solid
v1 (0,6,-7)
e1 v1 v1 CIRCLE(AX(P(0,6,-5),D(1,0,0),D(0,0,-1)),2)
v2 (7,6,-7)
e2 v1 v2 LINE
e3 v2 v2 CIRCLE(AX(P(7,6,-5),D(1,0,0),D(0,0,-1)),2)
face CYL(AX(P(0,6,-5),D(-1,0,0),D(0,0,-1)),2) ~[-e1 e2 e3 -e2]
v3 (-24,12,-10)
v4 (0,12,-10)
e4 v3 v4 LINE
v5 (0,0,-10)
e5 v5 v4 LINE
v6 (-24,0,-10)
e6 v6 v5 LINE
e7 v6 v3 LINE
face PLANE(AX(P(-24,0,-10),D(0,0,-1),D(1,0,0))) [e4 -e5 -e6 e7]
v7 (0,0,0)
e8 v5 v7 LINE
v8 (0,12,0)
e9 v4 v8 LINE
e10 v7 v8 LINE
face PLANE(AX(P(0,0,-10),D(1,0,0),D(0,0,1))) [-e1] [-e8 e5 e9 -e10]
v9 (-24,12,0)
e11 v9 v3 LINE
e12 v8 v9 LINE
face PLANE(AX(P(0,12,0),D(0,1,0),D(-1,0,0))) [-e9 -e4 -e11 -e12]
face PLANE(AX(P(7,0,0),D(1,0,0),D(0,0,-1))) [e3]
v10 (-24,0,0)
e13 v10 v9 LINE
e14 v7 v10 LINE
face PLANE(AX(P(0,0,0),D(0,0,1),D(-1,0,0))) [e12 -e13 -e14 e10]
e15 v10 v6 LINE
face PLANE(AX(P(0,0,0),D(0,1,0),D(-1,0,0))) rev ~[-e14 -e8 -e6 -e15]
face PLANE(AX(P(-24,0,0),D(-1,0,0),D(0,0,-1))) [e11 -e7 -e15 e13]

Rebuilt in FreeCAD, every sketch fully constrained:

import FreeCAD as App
import Part
import Sketcher
Q = App.Units.Quantity

doc = App.newDocument("Part")
body = doc.addObject("PartDesign::Body", "Body")

sketch1 = body.newObject("Sketcher::SketchObject", "Sketch")
sketch1.AttachmentSupport = (doc.getObject("XZ_Plane"), [""])
sketch1.MapMode = "FlatFace"
sketch1.addGeometry([
    Part.LineSegment(App.Vector(-24, 0, 0), App.Vector(0, 0, 0)),
    Part.LineSegment(App.Vector(0, 0, 0), App.Vector(0, -10, 0)),
    Part.LineSegment(App.Vector(0, -10, 0), App.Vector(-24, -10, 0)),
    Part.LineSegment(App.Vector(-24, -10, 0), App.Vector(-24, 0, 0)),
], False)
sketch1.addConstraint([
    Sketcher.Constraint("Coincident", 0, 2, 1, 1),
    Sketcher.Constraint("Coincident", 1, 2, 2, 1),
    Sketcher.Constraint("Coincident", 2, 2, 3, 1),
    Sketcher.Constraint("Coincident", 3, 2, 0, 1),
    Sketcher.Constraint("Horizontal", 0),
    Sketcher.Constraint("Vertical", 1),
    Sketcher.Constraint("Horizontal", 2),
    Sketcher.Constraint("Vertical", 3),
    Sketcher.Constraint("Coincident", 0, 2, -1, 1),
    Sketcher.Constraint("DistanceX", 0, 1, 0, 2, Q("24 mm")),
    Sketcher.Constraint("DistanceY", 1, 2, 1, 1, Q("10 mm")),
])
pad1 = body.newObject("PartDesign::Pad", "Pad")
pad1.Profile = sketch1
pad1.Length = 12
pad1.Reversed = True

sketch2 = body.newObject("Sketcher::SketchObject", "Sketch001")
sketch2.AttachmentSupport = (doc.getObject("YZ_Plane"), [""])
sketch2.MapMode = "FlatFace"
sketch2.addGeometry(Part.Circle(App.Vector(6, -5, 0), App.Vector(0, 0, 1), 2), False)
sketch2.addConstraint([
    Sketcher.Constraint("Diameter", 0, Q("4 mm")),
    Sketcher.Constraint("DistanceX", -1, 1, 0, 3, Q("6 mm")),
    Sketcher.Constraint("DistanceY", 0, 3, -1, 1, Q("5 mm")),
])
pad2 = body.newObject("PartDesign::Pad", "Pad001")
pad2.Profile = sketch2
pad2.Length = 7

doc.recompute()
